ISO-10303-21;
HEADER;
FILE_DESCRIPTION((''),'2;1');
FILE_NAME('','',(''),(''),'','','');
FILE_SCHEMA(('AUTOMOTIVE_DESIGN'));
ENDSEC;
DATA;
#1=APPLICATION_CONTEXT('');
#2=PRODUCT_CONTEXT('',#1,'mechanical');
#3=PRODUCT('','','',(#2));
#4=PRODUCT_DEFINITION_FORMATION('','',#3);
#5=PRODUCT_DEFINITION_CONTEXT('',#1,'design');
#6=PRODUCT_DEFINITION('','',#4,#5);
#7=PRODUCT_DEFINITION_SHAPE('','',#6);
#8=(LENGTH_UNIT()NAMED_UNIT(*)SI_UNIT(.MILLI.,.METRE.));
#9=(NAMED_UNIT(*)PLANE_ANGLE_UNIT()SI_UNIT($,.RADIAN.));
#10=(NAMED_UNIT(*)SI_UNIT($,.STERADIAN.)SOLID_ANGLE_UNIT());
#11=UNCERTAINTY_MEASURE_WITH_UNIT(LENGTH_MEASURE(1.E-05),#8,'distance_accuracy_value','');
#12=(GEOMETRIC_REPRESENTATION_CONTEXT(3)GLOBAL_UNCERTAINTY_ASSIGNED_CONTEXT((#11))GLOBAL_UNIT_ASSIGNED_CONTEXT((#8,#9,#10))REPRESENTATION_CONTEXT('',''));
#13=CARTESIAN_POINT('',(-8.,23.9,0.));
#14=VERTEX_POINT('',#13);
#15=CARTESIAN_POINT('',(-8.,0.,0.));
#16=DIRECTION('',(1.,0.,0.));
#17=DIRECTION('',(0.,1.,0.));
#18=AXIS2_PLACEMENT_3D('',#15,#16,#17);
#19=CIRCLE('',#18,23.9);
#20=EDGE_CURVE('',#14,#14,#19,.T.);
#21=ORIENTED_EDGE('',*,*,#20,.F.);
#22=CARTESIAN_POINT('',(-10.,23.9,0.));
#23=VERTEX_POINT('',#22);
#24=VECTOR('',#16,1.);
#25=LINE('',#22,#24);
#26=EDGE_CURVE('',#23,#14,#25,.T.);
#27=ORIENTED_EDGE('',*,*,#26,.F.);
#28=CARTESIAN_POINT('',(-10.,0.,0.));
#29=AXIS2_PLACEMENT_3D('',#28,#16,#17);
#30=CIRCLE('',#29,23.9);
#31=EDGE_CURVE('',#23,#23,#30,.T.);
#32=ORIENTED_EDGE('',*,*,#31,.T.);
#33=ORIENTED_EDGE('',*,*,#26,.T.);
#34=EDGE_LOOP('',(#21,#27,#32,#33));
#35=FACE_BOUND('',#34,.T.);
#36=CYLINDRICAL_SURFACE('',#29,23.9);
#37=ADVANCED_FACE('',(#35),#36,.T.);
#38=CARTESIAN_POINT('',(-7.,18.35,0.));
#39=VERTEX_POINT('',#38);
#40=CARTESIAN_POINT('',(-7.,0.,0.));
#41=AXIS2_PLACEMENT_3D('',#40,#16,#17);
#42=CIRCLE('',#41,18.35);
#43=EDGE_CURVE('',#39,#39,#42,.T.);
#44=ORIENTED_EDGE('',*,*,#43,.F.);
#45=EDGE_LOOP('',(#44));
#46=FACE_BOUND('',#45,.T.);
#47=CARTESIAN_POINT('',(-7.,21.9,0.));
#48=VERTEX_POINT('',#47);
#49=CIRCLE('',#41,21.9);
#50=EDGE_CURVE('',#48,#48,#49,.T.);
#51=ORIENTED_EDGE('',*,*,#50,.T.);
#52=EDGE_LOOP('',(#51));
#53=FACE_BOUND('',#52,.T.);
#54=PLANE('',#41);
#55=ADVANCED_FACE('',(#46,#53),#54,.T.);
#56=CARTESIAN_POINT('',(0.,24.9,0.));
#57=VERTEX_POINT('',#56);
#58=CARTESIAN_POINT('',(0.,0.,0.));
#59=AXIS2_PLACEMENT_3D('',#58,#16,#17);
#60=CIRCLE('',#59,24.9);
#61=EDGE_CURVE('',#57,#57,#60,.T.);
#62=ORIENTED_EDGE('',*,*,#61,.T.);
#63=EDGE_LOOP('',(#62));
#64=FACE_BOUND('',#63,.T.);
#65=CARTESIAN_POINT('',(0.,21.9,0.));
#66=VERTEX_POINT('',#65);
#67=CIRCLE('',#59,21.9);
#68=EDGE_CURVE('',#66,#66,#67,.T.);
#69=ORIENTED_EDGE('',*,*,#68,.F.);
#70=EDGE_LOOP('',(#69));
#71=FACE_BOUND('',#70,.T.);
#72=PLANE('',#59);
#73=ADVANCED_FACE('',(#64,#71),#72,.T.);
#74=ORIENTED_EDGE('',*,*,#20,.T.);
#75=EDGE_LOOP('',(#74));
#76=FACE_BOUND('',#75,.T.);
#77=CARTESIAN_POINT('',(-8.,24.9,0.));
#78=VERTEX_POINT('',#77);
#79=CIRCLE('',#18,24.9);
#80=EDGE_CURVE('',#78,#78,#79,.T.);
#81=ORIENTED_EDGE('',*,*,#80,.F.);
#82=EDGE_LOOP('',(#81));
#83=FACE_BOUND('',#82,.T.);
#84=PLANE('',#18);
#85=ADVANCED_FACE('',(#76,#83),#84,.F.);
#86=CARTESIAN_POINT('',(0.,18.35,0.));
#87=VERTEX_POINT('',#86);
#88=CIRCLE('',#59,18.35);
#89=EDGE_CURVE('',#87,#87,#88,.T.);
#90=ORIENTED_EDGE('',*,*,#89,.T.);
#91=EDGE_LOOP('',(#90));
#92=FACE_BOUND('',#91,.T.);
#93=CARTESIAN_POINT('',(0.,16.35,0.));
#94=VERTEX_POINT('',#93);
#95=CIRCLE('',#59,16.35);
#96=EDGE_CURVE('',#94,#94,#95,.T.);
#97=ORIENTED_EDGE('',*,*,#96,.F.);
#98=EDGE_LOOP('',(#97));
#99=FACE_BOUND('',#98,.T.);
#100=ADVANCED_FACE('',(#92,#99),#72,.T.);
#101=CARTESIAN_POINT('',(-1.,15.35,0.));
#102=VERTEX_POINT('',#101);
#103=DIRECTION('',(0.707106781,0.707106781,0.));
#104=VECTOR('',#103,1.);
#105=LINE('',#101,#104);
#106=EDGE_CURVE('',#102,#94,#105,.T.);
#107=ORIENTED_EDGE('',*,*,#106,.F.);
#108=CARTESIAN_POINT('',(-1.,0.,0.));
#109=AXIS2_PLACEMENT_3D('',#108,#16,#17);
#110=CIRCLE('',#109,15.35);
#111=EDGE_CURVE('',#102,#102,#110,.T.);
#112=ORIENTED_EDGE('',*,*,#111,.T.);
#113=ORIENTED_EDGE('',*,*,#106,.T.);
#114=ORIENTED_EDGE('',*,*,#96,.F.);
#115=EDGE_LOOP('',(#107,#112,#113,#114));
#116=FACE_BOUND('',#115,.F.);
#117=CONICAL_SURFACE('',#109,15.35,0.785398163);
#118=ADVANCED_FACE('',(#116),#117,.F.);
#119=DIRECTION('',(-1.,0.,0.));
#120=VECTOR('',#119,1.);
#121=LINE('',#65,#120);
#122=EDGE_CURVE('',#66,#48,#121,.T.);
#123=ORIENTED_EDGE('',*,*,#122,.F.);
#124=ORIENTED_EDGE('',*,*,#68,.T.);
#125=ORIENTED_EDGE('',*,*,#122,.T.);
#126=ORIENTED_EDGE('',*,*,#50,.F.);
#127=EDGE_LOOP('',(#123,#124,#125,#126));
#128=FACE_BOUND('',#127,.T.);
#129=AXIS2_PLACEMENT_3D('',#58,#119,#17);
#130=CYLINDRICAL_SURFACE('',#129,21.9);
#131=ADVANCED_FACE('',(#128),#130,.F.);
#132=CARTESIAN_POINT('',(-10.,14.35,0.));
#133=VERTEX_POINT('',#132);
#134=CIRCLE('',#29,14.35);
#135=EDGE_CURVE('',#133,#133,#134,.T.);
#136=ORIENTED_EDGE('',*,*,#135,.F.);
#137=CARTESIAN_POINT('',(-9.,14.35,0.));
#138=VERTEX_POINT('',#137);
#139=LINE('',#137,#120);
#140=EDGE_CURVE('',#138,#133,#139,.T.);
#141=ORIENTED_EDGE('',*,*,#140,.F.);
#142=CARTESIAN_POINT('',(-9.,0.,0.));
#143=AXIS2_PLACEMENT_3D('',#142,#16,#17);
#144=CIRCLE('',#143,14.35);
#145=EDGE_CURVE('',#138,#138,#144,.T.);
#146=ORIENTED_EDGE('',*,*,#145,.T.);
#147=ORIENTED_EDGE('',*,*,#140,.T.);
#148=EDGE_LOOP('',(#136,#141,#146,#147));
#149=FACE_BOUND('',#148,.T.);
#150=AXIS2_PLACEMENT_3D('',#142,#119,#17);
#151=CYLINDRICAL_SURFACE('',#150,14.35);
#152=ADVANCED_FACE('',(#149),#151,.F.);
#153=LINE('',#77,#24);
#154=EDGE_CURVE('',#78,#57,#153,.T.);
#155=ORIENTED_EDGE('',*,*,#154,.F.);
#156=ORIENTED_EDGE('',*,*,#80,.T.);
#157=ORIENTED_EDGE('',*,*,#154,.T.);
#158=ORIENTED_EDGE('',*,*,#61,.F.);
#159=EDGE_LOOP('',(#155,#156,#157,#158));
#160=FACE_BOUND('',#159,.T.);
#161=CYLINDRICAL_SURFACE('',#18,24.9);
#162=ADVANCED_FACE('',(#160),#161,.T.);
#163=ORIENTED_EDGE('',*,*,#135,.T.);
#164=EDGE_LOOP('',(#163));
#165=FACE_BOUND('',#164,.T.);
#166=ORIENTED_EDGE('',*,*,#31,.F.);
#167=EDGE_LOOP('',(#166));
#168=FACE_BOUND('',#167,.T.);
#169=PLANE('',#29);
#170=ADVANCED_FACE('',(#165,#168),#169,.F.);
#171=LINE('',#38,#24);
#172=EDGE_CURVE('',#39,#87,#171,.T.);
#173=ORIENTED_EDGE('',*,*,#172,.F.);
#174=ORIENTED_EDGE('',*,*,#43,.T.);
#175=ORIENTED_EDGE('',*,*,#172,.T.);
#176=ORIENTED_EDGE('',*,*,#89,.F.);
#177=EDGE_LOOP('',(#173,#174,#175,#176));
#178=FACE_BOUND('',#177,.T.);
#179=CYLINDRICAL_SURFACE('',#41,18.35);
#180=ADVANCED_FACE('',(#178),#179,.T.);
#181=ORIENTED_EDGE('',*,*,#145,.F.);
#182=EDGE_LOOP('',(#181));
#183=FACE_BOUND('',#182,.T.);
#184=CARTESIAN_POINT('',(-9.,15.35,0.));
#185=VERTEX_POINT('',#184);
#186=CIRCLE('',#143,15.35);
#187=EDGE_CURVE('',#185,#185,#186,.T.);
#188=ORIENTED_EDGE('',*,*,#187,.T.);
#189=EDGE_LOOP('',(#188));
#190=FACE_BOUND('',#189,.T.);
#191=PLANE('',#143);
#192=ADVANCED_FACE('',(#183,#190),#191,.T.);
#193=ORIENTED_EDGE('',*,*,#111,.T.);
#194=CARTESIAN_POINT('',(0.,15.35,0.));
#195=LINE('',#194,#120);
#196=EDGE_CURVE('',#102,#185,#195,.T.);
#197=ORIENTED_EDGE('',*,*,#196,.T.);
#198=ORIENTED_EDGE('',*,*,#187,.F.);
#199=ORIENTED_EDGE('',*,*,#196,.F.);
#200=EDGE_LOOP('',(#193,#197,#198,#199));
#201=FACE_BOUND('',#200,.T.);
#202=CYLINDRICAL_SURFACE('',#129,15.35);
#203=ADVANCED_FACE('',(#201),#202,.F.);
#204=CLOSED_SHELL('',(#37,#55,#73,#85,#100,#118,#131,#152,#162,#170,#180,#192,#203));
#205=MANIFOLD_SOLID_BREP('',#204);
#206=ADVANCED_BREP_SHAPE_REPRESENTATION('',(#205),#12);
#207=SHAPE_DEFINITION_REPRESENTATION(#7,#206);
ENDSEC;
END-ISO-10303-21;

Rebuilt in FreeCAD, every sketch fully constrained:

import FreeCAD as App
import Part
import Sketcher

V = App.Vector
Q = App.Units.Quantity


def edges_at(feature, points):
    """Names of the edges that pass closest to the given points."""
    edges = feature.Shape.Edges
    near = lambda p: min(range(len(edges)), key=lambda i: edges[i].distToShape(Part.Vertex(*p))[0])
    return sorted({f"Edge{near(p) + 1}" for p in points})

doc = App.newDocument("Part")
body = doc.addObject("PartDesign::Body", "Body")

sketch1 = body.newObject("Sketcher::SketchObject", "Sketch")
sketch1.AttachmentSupport = (doc.getObject("XY_Plane"), [""])
sketch1.MapMode = "FlatFace"
sketch1.addGeometry([
    Part.LineSegment(V(-9, 15.35, 0), V(0, 15.35, 0)),
    Part.LineSegment(V(0, 15.35, 0), V(0, 18.35, 0)),
    Part.LineSegment(V(0, 18.35, 0), V(-7, 18.35, 0)),
    Part.LineSegment(V(-7, 18.35, 0), V(-7, 21.9, 0)),
    Part.LineSegment(V(-7, 21.9, 0), V(0, 21.9, 0)),
    Part.LineSegment(V(0, 21.9, 0), V(0, 24.9, 0)),
    Part.LineSegment(V(0, 24.9, 0), V(-8, 24.9, 0)),
    Part.LineSegment(V(-8, 24.9, 0), V(-8, 23.9, 0)),
    Part.LineSegment(V(-8, 23.9, 0), V(-10, 23.9, 0)),
    Part.LineSegment(V(-10, 23.9, 0), V(-10, 14.35, 0)),
    Part.LineSegment(V(-10, 14.35, 0), V(-9, 14.35, 0)),
    Part.LineSegment(V(-9, 14.35, 0), V(-9, 15.35, 0)),
], False)
sketch1.addConstraint([
    Sketcher.Constraint("Coincident", 0, 2, 1, 1),
    Sketcher.Constraint("Coincident", 1, 2, 2, 1),
    Sketcher.Constraint("Coincident", 2, 2, 3, 1),
    Sketcher.Constraint("Coincident", 3, 2, 4, 1),
    Sketcher.Constraint("Coincident", 4, 2, 5, 1),
    Sketcher.Constraint("Coincident", 5, 2, 6, 1),
    Sketcher.Constraint("Coincident", 6, 2, 7, 1),
    Sketcher.Constraint("Coincident", 7, 2, 8, 1),
    Sketcher.Constraint("Coincident", 8, 2, 9, 1),
    Sketcher.Constraint("Coincident", 9, 2, 10, 1),
    Sketcher.Constraint("Coincident", 10, 2, 11, 1),
    Sketcher.Constraint("Coincident", 11, 2, 0, 1),
    Sketcher.Constraint("Horizontal", 0),
    Sketcher.Constraint("Vertical", 1),
    Sketcher.Constraint("Horizontal", 2),
    Sketcher.Constraint("Vertical", 3),
    Sketcher.Constraint("Horizontal", 4),
    Sketcher.Constraint("Vertical", 5),
    Sketcher.Constraint("Horizontal", 6),
    Sketcher.Constraint("Vertical", 7),
    Sketcher.Constraint("Horizontal", 8),
    Sketcher.Constraint("Vertical", 9),
    Sketcher.Constraint("Horizontal", 10),
    Sketcher.Constraint("Vertical", 11),
    Sketcher.Constraint("PointOnObject", 0, 2, -2),
    Sketcher.Constraint("PointOnObject", 4, 2, -2),
    Sketcher.Constraint("Equal", 1, 5),
    Sketcher.Constraint("Equal", 10, 7),
    Sketcher.Constraint("Equal", 7, 11),
    Sketcher.Constraint("DistanceX", 8, 2, 8, 1, Q("2 mm")),
    Sketcher.Constraint("DistanceX", 10, 1, 10, 2, Q("1 mm")),
    Sketcher.Constraint("DistanceY", 1, 1, 1, 2, Q("3 mm")),
    Sketcher.Constraint("DistanceX", 8, 2, -1, 1, Q("10 mm")),
    Sketcher.Constraint("DistanceX", 6, 2, 3, 2, Q("1 mm")),
    Sketcher.Constraint("DistanceY", 3, 1, 3, 2, Q("3.55 mm")),
    Sketcher.Constraint("DistanceY", -1, 1, 3, 2, Q("21.9 mm")),
])
revolution = body.newObject("PartDesign::Revolution", "Revolution")
revolution.Profile = sketch1
revolution.ReferenceAxis = (sketch1, ["H_Axis"])
revolution.Angle = 360
doc.recompute()

chamfer = body.newObject("PartDesign::Chamfer", "Chamfer")
chamfer.Base = (revolution, edges_at(revolution, [(0, -15.35, 0)]))
chamfer.Size = 1

doc.recompute()
